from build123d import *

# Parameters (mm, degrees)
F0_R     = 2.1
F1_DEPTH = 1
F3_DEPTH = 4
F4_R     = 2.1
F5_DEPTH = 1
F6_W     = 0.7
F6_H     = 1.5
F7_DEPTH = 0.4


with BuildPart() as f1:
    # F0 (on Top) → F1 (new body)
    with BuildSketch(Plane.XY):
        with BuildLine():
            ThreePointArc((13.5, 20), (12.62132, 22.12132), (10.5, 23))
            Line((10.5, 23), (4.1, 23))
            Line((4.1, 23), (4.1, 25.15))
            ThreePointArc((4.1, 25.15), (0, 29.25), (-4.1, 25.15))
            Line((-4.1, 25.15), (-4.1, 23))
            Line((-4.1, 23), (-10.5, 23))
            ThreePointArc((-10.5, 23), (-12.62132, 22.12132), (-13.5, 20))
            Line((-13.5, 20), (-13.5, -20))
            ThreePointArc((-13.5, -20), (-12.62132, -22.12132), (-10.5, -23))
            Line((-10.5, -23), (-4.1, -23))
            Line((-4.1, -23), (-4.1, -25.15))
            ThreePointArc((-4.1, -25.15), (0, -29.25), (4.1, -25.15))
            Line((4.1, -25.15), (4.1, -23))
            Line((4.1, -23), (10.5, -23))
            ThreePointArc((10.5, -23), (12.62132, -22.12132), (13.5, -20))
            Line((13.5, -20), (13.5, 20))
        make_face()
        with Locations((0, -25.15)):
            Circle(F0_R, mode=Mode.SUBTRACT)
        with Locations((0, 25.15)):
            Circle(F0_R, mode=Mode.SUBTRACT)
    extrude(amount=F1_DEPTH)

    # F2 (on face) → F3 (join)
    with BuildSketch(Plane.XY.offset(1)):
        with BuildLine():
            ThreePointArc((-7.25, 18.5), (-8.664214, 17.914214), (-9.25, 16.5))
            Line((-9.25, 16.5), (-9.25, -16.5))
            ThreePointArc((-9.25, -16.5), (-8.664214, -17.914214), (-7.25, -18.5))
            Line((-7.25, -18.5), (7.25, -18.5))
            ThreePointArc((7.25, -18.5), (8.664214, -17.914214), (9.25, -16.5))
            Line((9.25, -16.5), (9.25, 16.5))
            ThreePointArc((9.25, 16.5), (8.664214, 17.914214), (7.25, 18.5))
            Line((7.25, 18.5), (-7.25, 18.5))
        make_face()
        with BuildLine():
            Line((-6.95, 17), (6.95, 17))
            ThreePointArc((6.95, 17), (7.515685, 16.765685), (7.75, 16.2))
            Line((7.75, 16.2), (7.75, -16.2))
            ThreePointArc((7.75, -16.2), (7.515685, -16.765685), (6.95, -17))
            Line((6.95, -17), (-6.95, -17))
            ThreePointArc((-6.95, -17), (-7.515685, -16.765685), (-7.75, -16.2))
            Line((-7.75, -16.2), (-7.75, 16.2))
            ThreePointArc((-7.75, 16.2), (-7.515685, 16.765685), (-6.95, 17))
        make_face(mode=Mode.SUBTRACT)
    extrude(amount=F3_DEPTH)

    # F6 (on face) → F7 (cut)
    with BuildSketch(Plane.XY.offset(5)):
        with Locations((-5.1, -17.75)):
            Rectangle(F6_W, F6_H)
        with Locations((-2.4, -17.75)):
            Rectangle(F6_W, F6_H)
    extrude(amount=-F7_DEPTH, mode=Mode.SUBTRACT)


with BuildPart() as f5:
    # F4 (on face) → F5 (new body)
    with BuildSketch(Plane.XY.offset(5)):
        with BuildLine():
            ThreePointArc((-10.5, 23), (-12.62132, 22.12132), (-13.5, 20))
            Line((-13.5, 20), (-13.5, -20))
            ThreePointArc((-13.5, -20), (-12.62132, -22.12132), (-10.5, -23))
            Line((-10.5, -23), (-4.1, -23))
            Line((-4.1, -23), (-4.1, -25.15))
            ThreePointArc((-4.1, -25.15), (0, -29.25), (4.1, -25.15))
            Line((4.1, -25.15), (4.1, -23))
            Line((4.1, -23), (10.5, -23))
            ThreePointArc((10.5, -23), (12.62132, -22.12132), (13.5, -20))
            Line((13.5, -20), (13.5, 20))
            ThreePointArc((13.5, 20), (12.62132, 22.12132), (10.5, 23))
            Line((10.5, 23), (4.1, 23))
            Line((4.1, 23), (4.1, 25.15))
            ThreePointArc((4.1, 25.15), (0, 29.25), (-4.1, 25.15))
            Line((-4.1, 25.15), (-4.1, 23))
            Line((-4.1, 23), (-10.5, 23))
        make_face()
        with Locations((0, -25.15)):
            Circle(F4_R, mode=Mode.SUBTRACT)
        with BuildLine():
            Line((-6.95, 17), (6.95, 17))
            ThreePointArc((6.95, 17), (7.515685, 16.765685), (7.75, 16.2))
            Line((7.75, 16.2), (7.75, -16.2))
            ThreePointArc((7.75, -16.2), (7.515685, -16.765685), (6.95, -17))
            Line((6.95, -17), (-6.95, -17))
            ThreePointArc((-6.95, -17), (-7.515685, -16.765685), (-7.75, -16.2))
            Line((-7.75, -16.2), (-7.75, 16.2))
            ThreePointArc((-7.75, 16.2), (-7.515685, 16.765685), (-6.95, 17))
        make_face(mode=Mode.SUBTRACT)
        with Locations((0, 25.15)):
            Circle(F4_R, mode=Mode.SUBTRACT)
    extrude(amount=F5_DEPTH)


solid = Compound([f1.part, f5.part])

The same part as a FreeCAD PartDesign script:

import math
import FreeCAD as App
import Part
import Sketcher

doc = App.newDocument("Part")
body = doc.addObject("PartDesign::Body", "Body")

# Sketch on XY plane
sketch1 = body.newObject("Sketcher::SketchObject", "Sketch")
sketch1.AttachmentSupport = (doc.getObject("XY_Plane"), [""])
sketch1.MapMode = "FlatFace"
sketch1.addGeometry([
    Part.ArcOfCircle(Part.Circle(App.Vector(10.5, 20, 0), App.Vector(0, 0, 1), 3), math.radians(0), math.radians(90)),  # 0
    Part.LineSegment(App.Vector(10.5, 23, 0), App.Vector(4.1, 23, 0)),  # 1
    Part.LineSegment(App.Vector(4.1, 23, 0), App.Vector(4.1, 25.1, 0)),  # 2
    Part.ArcOfCircle(Part.Circle(App.Vector(0, 25.1, 0), App.Vector(0, 0, 1), 4.1), math.radians(0), math.radians(180)),  # 3
    Part.LineSegment(App.Vector(-4.1, 25.1, 0), App.Vector(-4.1, 23, 0)),  # 4
    Part.LineSegment(App.Vector(-4.1, 23, 0), App.Vector(-10.5, 23, 0)),  # 5
    Part.ArcOfCircle(Part.Circle(App.Vector(-10.5, 20, 0), App.Vector(0, 0, 1), 3), math.radians(90), math.radians(180)),  # 6
    Part.LineSegment(App.Vector(-13.5, 20, 0), App.Vector(-13.5, -20, 0)),  # 7
    Part.ArcOfCircle(Part.Circle(App.Vector(-10.5, -20, 0), App.Vector(0, 0, 1), 3), math.radians(-180), math.radians(-90)),  # 8
    Part.LineSegment(App.Vector(-10.5, -23, 0), App.Vector(-4.1, -23, 0)),  # 9
    Part.LineSegment(App.Vector(-4.1, -23, 0), App.Vector(-4.1, -25.1, 0)),  # 10
    Part.ArcOfCircle(Part.Circle(App.Vector(0, -25.1, 0), App.Vector(0, 0, 1), 4.1), math.radians(180), math.radians(360)),  # 11
    Part.LineSegment(App.Vector(4.1, -25.1, 0), App.Vector(4.1, -23, 0)),  # 12
    Part.LineSegment(App.Vector(4.1, -23, 0), App.Vector(10.5, -23, 0)),  # 13
    Part.ArcOfCircle(Part.Circle(App.Vector(10.5, -20, 0), App.Vector(0, 0, 1), 3), math.radians(-90), math.radians(0)),  # 14
    Part.LineSegment(App.Vector(13.5, -20, 0), App.Vector(13.5, 20, 0)),  # 15
    Part.Circle(App.Vector(0, -25.1, 0), App.Vector(0, 0, 1), 2.1),  # 16
    Part.Circle(App.Vector(0, 25.1, 0), App.Vector(0, 0, 1), 2.1),  # 17
], False)
sketch1.addConstraint([
    Sketcher.Constraint("Tangent", 0, 2, 1, 1),
    Sketcher.Constraint("Coincident", 1, 2, 2, 1),
    Sketcher.Constraint("Tangent", 2, 2, 3, 1),
    Sketcher.Constraint("Tangent", 3, 2, 4, 1),
    Sketcher.Constraint("Coincident", 4, 2, 5, 1),
    Sketcher.Constraint("Tangent", 5, 2, 6, 1),
    Sketcher.Constraint("Tangent", 6, 2, 7, 1),
    Sketcher.Constraint("Tangent", 7, 2, 8, 1),
    Sketcher.Constraint("Tangent", 8, 2, 9, 1),
    Sketcher.Constraint("Coincident", 9, 2, 10, 1),
    Sketcher.Constraint("Tangent", 10, 2, 11, 1),
    Sketcher.Constraint("Tangent", 11, 2, 12, 1),
    Sketcher.Constraint("Coincident", 12, 2, 13, 1),
    Sketcher.Constraint("Tangent", 13, 2, 14, 1),
    Sketcher.Constraint("Tangent", 14, 2, 15, 1),
    Sketcher.Constraint("Tangent", 15, 2, 0, 1),
    Sketcher.Constraint("Horizontal", 1),
    Sketcher.Constraint("Vertical", 2),
    Sketcher.Constraint("Vertical", 4),
    Sketcher.Constraint("Horizontal", 5),
    Sketcher.Constraint("Vertical", 7),
    Sketcher.Constraint("Horizontal", 9),
    Sketcher.Constraint("Vertical", 10),
    Sketcher.Constraint("Vertical", 12),
    Sketcher.Constraint("Horizontal", 13),
    Sketcher.Constraint("Vertical", 15),
    Sketcher.Constraint("Coincident", 16, 3, 11, 3),
    Sketcher.Constraint("Coincident", 17, 3, 3, 3),
    Sketcher.Constraint("Equal", 0, 6),
    Sketcher.Constraint("Equal", 6, 8),
    Sketcher.Constraint("Equal", 3, 11),
    Sketcher.Constraint("Equal", 8, 14),
    Sketcher.Constraint("Equal", 16, 17),
    Sketcher.Constraint("Symmetric", 0, 3, 8, 3, -1, 1),
    Sketcher.Constraint("Symmetric", 3, 3, 11, 3, -1, 1),
    Sketcher.Constraint("Symmetric", 1, 2, 4, 2, -2),
    Sketcher.Constraint("Horizontal", 8, 3, 14, 3),
    Sketcher.Constraint("Radius", 0, 3.000001),
    Sketcher.Constraint("Diameter", 16, 4.2),
    Sketcher.Constraint("Radius", 3, 4.1),
    Sketcher.Constraint("DistanceY", 7, 2, 7, 1, 40.0),
    Sketcher.Constraint("DistanceX", 1, 2, 1, 1, 6.4),
    Sketcher.Constraint("DistanceY", 2, 1, 2, 2, 2.15),
])
pad1 = body.newObject("PartDesign::Pad", "Pad")
pad1.Profile = sketch1
pad1.Length = 1

# Sketch on XY plane
sketch2 = body.newObject("Sketcher::SketchObject", "Sketch001")
sketch2.AttachmentSupport = (doc.getObject("XY_Plane"), [""])
sketch2.MapMode = "FlatFace"
sketch2.AttachmentOffset = App.Placement(App.Vector(0, 0, 1), App.Rotation())
sketch2.addGeometry([
    Part.ArcOfCircle(Part.Circle(App.Vector(-7.3, 16.5, 0), App.Vector(0, 0, 1), 2), math.radians(90), math.radians(180)),  # 0
    Part.LineSegment(App.Vector(-9.2, 16.5, 0), App.Vector(-9.2, -16.5, 0)),  # 1
    Part.ArcOfCircle(Part.Circle(App.Vector(-7.3, -16.5, 0), App.Vector(0, 0, 1), 2), math.radians(180), math.radians(270)),  # 2
    Part.LineSegment(App.Vector(-7.2, -18.5, 0), App.Vector(7.2, -18.5, 0)),  # 3
    Part.ArcOfCircle(Part.Circle(App.Vector(7.3, -16.5, 0), App.Vector(0, 0, 1), 2), math.radians(-90), math.radians(0)),  # 4
    Part.LineSegment(App.Vector(9.2, -16.5, 0), App.Vector(9.2, 16.5, 0)),  # 5
    Part.ArcOfCircle(Part.Circle(App.Vector(7.3, 16.5, 0), App.Vector(0, 0, 1), 2), math.radians(0), math.radians(90)),  # 6
    Part.LineSegment(App.Vector(7.2, 18.5, 0), App.Vector(-7.2, 18.5, 0)),  # 7
    Part.ArcOfCircle(Part.Circle(App.Vector(-6.9, 16.2, 0), App.Vector(0, 0, 1), 0.8), math.radians(90), math.radians(180)),  # 8
    Part.LineSegment(App.Vector(-7, 17, 0), App.Vector(7, 17, 0)),  # 9
    Part.ArcOfCircle(Part.Circle(App.Vector(6.9, 16.2, 0), App.Vector(0, 0, 1), 0.8), math.radians(0), math.radians(90)),  # 10
    Part.LineSegment(App.Vector(7.8, 16.2, 0), App.Vector(7.8, -16.2, 0)),  # 11
    Part.ArcOfCircle(Part.Circle(App.Vector(6.9, -16.2, 0), App.Vector(0, 0, 1), 0.8), math.radians(-90), math.radians(0)),  # 12
    Part.LineSegment(App.Vector(7, -17, 0), App.Vector(-7, -17, 0)),  # 13
    Part.ArcOfCircle(Part.Circle(App.Vector(-6.9, -16.2, 0), App.Vector(0, 0, 1), 0.8), math.radians(-180), math.radians(-90)),  # 14
    Part.LineSegment(App.Vector(-7.8, -16.2, 0), App.Vector(-7.8, 16.2, 0)),  # 15
], False)
sketch2.addConstraint([
    Sketcher.Constraint("Tangent", 0, 2, 1, 1),
    Sketcher.Constraint("Tangent", 1, 2, 2, 1),
    Sketcher.Constraint("Tangent", 2, 2, 3, 1),
    Sketcher.Constraint("Tangent", 3, 2, 4, 1),
    Sketcher.Constraint("Tangent", 4, 2, 5, 1),
    Sketcher.Constraint("Tangent", 5, 2, 6, 1),
    Sketcher.Constraint("Tangent", 6, 2, 7, 1),
    Sketcher.Constraint("Tangent", 7, 2, 0, 1),
    Sketcher.Constraint("Tangent", 8, 1, 9, 1),
    Sketcher.Constraint("Tangent", 9, 2, 10, 2),
    Sketcher.Constraint("Tangent", 10, 1, 11, 1),
    Sketcher.Constraint("Tangent", 11, 2, 12, 2),
    Sketcher.Constraint("Tangent", 12, 1, 13, 1),
    Sketcher.Constraint("Tangent", 13, 2, 14, 2),
    Sketcher.Constraint("Tangent", 14, 1, 15, 1),
    Sketcher.Constraint("Tangent", 15, 2, 8, 2),
    Sketcher.Constraint("Vertical", 1),
    Sketcher.Constraint("Horizontal", 3),
    Sketcher.Constraint("Vertical", 5),
    Sketcher.Constraint("Horizontal", 7),
    Sketcher.Constraint("Horizontal", 9),
    Sketcher.Constraint("Vertical", 11),
    Sketcher.Constraint("Horizontal", 13),
    Sketcher.Constraint("Vertical", 15),
    Sketcher.Constraint("Equal", 0, 2),
    Sketcher.Constraint("Equal", 2, 4),
    Sketcher.Constraint("Equal", 4, 6),
    Sketcher.Constraint("Equal", 8, 10),
    Sketcher.Constraint("Equal", 10, 12),
    Sketcher.Constraint("Equal", 12, 14),
    Sketcher.Constraint("Symmetric", 0, 3, 4, 3, -1, 1),
    Sketcher.Constraint("Symmetric", 8, 3, 12, 3, -1, 1),
    Sketcher.Constraint("Radius", 0, 1.999999),
    Sketcher.Constraint("Radius", 8, 0.800001),
    Sketcher.Constraint("DistanceY", 1, 2, 1, 1, 33.0),
    Sketcher.Constraint("DistanceX", 3, 1, 3, 2, 14.5),
    Sketcher.Constraint("DistanceX", 9, 1, 9, 2, 13.9),
    Sketcher.Constraint("DistanceY", 11, 2, 11, 1, 32.4),
])
pad2 = body.newObject("PartDesign::Pad", "Pad001")
pad2.Profile = sketch2
pad2.Length = 4

# Sketch on XY plane
sketch3 = body.newObject("Sketcher::SketchObject", "Sketch002")
sketch3.AttachmentSupport = (doc.getObject("XY_Plane"), [""])
sketch3.MapMode = "FlatFace"
sketch3.AttachmentOffset = App.Placement(App.Vector(0, 0, 5), App.Rotation())
sketch3.addGeometry([
    Part.LineSegment(App.Vector(-5.5, -17, 0), App.Vector(-5.5, -18.5, 0)),  # 0
    Part.LineSegment(App.Vector(-5.5, -18.5, 0), App.Vector(-4.8, -18.5, 0)),  # 1
    Part.LineSegment(App.Vector(-4.8, -18.5, 0), App.Vector(-4.8, -17, 0)),  # 2
    Part.LineSegment(App.Vector(-4.8, -17, 0), App.Vector(-5.5, -17, 0)),  # 3
    Part.LineSegment(App.Vector(-2.8, -17, 0), App.Vector(-2.8, -18.5, 0)),  # 4
    Part.LineSegment(App.Vector(-2.8, -18.5, 0), App.Vector(-2, -18.5, 0)),  # 5
    Part.LineSegment(App.Vector(-2, -18.5, 0), App.Vector(-2, -17, 0)),  # 6
    Part.LineSegment(App.Vector(-2, -17, 0), App.Vector(-2.8, -17, 0)),  # 7
], False)
sketch3.addConstraint([
    Sketcher.Constraint("Coincident", 0, 2, 1, 1),
    Sketcher.Constraint("Coincident", 1, 2, 2, 1),
    Sketcher.Constraint("Coincident", 2, 2, 3, 1),
    Sketcher.Constraint("Coincident", 3, 2, 0, 1),
    Sketcher.Constraint("Coincident", 4, 2, 5, 1),
    Sketcher.Constraint("Coincident", 5, 2, 6, 1),
    Sketcher.Constraint("Coincident", 6, 2, 7, 1),
    Sketcher.Constraint("Coincident", 7, 2, 4, 1),
    Sketcher.Constraint("Vertical", 0),
    Sketcher.Constraint("Horizontal", 1),
    Sketcher.Constraint("Vertical", 2),
    Sketcher.Constraint("Horizontal", 3),
    Sketcher.Constraint("Vertical", 4),
    Sketcher.Constraint("Horizontal", 5),
    Sketcher.Constraint("Vertical", 6),
    Sketcher.Constraint("Horizontal", 7),
    Sketcher.Constraint("Horizontal", 1, 2, 4, 2),
    Sketcher.Constraint("Horizontal", 3, 2, 6, 2),
    Sketcher.Constraint("Equal", 3, 5),
    Sketcher.Constraint("DistanceX", 1, 1, 1, 2, 0.7),
    Sketcher.Constraint("DistanceY", 0, 2, 0, 1, 1.5),
    Sketcher.Constraint("DistanceY", 2, 2, -1, 1, 17.0),
    Sketcher.Constraint("DistanceX", 1, 2, 4, 2, 2.0),
    Sketcher.Constraint("DistanceX", 0, 2, -1, 1, 5.45),
])
pocket1 = body.newObject("PartDesign::Pocket", "Pocket")
pocket1.Profile = sketch3
pocket1.Length = 0.4
body2 = doc.addObject("PartDesign::Body", "Body001")

# Sketch on XY plane
sketch4 = body2.newObject("Sketcher::SketchObject", "Sketch003")
sketch4.AttachmentSupport = (doc.getObject("XY_Plane001"), [""])
sketch4.MapMode = "FlatFace"
sketch4.AttachmentOffset = App.Placement(App.Vector(0, 0, 5), App.Rotation())
sketch4.addGeometry([
    Part.ArcOfCircle(Part.Circle(App.Vector(-10.5, 20, 0), App.Vector(0, 0, 1), 3), math.radians(90), math.radians(180)),  # 0
    Part.LineSegment(App.Vector(-13.5, 20, 0), App.Vector(-13.5, -20, 0)),  # 1
    Part.ArcOfCircle(Part.Circle(App.Vector(-10.5, -20, 0), App.Vector(0, 0, 1), 3), math.radians(-180), math.radians(-90)),  # 2
    Part.LineSegment(App.Vector(-10.5, -23, 0), App.Vector(-4.1, -23, 0)),  # 3
    Part.LineSegment(App.Vector(-4.1, -23, 0), App.Vector(-4.1, -25.1, 0)),  # 4
    Part.ArcOfCircle(Part.Circle(App.Vector(0, -25.1, 0), App.Vector(0, 0, 1), 4.1), math.radians(180), math.radians(360)),  # 5
    Part.LineSegment(App.Vector(4.1, -25.1, 0), App.Vector(4.1, -23, 0)),  # 6
    Part.LineSegment(App.Vector(4.1, -23, 0), App.Vector(10.5, -23, 0)),  # 7
    Part.ArcOfCircle(Part.Circle(App.Vector(10.5, -20, 0), App.Vector(0, 0, 1), 3), math.radians(-90), math.radians(0)),  # 8
    Part.LineSegment(App.Vector(13.5, -20, 0), App.Vector(13.5, 20, 0)),  # 9
    Part.ArcOfCircle(Part.Circle(App.Vector(10.5, 20, 0), App.Vector(0, 0, 1), 3), math.radians(0), math.radians(90)),  # 10
    Part.LineSegment(App.Vector(10.5, 23, 0), App.Vector(4.1, 23, 0)),  # 11
    Part.LineSegment(App.Vector(4.1, 23, 0), App.Vector(4.1, 25.1, 0)),  # 12
    Part.ArcOfCircle(Part.Circle(App.Vector(0, 25.1, 0), App.Vector(0, 0, 1), 4.1), math.radians(0), math.radians(180)),  # 13
    Part.LineSegment(App.Vector(-4.1, 25.1, 0), App.Vector(-4.1, 23, 0)),  # 14
    Part.LineSegment(App.Vector(-4.1, 23, 0), App.Vector(-10.5, 23, 0)),  # 15
    Part.Circle(App.Vector(0, -25.1, 0), App.Vector(0, 0, 1), 2.1),  # 16
    Part.ArcOfCircle(Part.Circle(App.Vector(-6.9, 16.2, 0), App.Vector(0, 0, 1), 0.8), math.radians(90), math.radians(180)),  # 17
    Part.LineSegment(App.Vector(-7, 17, 0), App.Vector(7, 17, 0)),  # 18
    Part.ArcOfCircle(Part.Circle(App.Vector(6.9, 16.2, 0), App.Vector(0, 0, 1), 0.8), math.radians(0), math.radians(90)),  # 19
    Part.LineSegment(App.Vector(7.8, 16.2, 0), App.Vector(7.8, -16.2, 0)),  # 20
    Part.ArcOfCircle(Part.Circle(App.Vector(6.9, -16.2, 0), App.Vector(0, 0, 1), 0.8), math.radians(-90), math.radians(0)),  # 21
    Part.LineSegment(App.Vector(7, -17, 0), App.Vector(-7, -17, 0)),  # 22
    Part.ArcOfCircle(Part.Circle(App.Vector(-6.9, -16.2, 0), App.Vector(0, 0, 1), 0.8), math.radians(-180), math.radians(-90)),  # 23
    Part.LineSegment(App.Vector(-7.8, -16.2, 0), App.Vector(-7.8, 16.2, 0)),  # 24
    Part.Circle(App.Vector(0, 25.1, 0), App.Vector(0, 0, 1), 2.1),  # 25
], False)
sketch4.addConstraint([
    Sketcher.Constraint("Tangent", 0, 2, 1, 1),
    Sketcher.Constraint("Tangent", 1, 2, 2, 1),
    Sketcher.Constraint("Tangent", 2, 2, 3, 1),
    Sketcher.Constraint("Coincident", 3, 2, 4, 1),
    Sketcher.Constraint("Tangent", 4, 2, 5, 1),
    Sketcher.Constraint("Tangent", 5, 2, 6, 1),
    Sketcher.Constraint("Coincident", 6, 2, 7, 1),
    Sketcher.Constraint("Tangent", 7, 2, 8, 1),
    Sketcher.Constraint("Tangent", 8, 2, 9, 1),
    Sketcher.Constraint("Tangent", 9, 2, 10, 1),
    Sketcher.Constraint("Tangent", 10, 2, 11, 1),
    Sketcher.Constraint("Coincident", 11, 2, 12, 1),
    Sketcher.Constraint("Tangent", 12, 2, 13, 1),
    Sketcher.Constraint("Tangent", 13, 2, 14, 1),
    Sketcher.Constraint("Coincident", 14, 2, 15, 1),
    Sketcher.Constraint("Tangent", 15, 2, 0, 1),
    Sketcher.Constraint("Tangent", 17, 1, 18, 1),
    Sketcher.Constraint("Tangent", 18, 2, 19, 2),
    Sketcher.Constraint("Tangent", 19, 1, 20, 1),
    Sketcher.Constraint("Tangent", 20, 2, 21, 2),
    Sketcher.Constraint("Tangent", 21, 1, 22, 1),
    Sketcher.Constraint("Tangent", 22, 2, 23, 2),
    Sketcher.Constraint("Tangent", 23, 1, 24, 1),
    Sketcher.Constraint("Tangent", 24, 2, 17, 2),
    Sketcher.Constraint("Vertical", 1),
    Sketcher.Constraint("Horizontal", 3),
    Sketcher.Constraint("Vertical", 4),
    Sketcher.Constraint("Vertical", 6),
    Sketcher.Constraint("Horizontal", 7),
    Sketcher.Constraint("Vertical", 9),
    Sketcher.Constraint("Horizontal", 11),
    Sketcher.Constraint("Vertical", 12),
    Sketcher.Constraint("Vertical", 14),
    Sketcher.Constraint("Horizontal", 15),
    Sketcher.Constraint("Horizontal", 18),
    Sketcher.Constraint("Vertical", 20),
    Sketcher.Constraint("Horizontal", 22),
    Sketcher.Constraint("Vertical", 24),
    Sketcher.Constraint("Coincident", 16, 3, 5, 3),
    Sketcher.Constraint("Coincident", 25, 3, 13, 3),
    Sketcher.Constraint("Equal", 0, 2),
    Sketcher.Constraint("Equal", 2, 8),
    Sketcher.Constraint("Equal", 8, 10),
    Sketcher.Constraint("Equal", 5, 13),
    Sketcher.Constraint("Equal", 17, 19),
    Sketcher.Constraint("Equal", 19, 21),
    Sketcher.Constraint("Equal", 21, 23),
    Sketcher.Constraint("Equal", 16, 25),
    Sketcher.Constraint("Symmetric", 0, 3, 8, 3, -1, 1),
    Sketcher.Constraint("Symmetric", 5, 3, 13, 3, -1, 1),
    Sketcher.Constraint("Symmetric", 17, 3, 21, 3, -1, 1),
    Sketcher.Constraint("Symmetric", 3, 2, 6, 2, -2),
    Sketcher.Constraint("Horizontal", 0, 3, 10, 3),
    Sketcher.Constraint("Radius", 0, 3.000001),
    Sketcher.Constraint("Diameter", 16, 4.2),
    Sketcher.Constraint("Radius", 5, 4.1),
    Sketcher.Constraint("Radius", 17, 0.800001),
    Sketcher.Constraint("DistanceY", 1, 2, 1, 1, 40.0),
    Sketcher.Constraint("DistanceX", 3, 1, 3, 2, 6.4),
    Sketcher.Constraint("DistanceX", 18, 1, 18, 2, 13.9),
    Sketcher.Constraint("DistanceY", 20, 2, 20, 1, 32.4),
    Sketcher.Constraint("DistanceY", 4, 2, 4, 1, 2.15),
])
pad3 = body2.newObject("PartDesign::Pad", "Pad002")
pad3.Profile = sketch4
pad3.Length = 1

doc.recompute()
